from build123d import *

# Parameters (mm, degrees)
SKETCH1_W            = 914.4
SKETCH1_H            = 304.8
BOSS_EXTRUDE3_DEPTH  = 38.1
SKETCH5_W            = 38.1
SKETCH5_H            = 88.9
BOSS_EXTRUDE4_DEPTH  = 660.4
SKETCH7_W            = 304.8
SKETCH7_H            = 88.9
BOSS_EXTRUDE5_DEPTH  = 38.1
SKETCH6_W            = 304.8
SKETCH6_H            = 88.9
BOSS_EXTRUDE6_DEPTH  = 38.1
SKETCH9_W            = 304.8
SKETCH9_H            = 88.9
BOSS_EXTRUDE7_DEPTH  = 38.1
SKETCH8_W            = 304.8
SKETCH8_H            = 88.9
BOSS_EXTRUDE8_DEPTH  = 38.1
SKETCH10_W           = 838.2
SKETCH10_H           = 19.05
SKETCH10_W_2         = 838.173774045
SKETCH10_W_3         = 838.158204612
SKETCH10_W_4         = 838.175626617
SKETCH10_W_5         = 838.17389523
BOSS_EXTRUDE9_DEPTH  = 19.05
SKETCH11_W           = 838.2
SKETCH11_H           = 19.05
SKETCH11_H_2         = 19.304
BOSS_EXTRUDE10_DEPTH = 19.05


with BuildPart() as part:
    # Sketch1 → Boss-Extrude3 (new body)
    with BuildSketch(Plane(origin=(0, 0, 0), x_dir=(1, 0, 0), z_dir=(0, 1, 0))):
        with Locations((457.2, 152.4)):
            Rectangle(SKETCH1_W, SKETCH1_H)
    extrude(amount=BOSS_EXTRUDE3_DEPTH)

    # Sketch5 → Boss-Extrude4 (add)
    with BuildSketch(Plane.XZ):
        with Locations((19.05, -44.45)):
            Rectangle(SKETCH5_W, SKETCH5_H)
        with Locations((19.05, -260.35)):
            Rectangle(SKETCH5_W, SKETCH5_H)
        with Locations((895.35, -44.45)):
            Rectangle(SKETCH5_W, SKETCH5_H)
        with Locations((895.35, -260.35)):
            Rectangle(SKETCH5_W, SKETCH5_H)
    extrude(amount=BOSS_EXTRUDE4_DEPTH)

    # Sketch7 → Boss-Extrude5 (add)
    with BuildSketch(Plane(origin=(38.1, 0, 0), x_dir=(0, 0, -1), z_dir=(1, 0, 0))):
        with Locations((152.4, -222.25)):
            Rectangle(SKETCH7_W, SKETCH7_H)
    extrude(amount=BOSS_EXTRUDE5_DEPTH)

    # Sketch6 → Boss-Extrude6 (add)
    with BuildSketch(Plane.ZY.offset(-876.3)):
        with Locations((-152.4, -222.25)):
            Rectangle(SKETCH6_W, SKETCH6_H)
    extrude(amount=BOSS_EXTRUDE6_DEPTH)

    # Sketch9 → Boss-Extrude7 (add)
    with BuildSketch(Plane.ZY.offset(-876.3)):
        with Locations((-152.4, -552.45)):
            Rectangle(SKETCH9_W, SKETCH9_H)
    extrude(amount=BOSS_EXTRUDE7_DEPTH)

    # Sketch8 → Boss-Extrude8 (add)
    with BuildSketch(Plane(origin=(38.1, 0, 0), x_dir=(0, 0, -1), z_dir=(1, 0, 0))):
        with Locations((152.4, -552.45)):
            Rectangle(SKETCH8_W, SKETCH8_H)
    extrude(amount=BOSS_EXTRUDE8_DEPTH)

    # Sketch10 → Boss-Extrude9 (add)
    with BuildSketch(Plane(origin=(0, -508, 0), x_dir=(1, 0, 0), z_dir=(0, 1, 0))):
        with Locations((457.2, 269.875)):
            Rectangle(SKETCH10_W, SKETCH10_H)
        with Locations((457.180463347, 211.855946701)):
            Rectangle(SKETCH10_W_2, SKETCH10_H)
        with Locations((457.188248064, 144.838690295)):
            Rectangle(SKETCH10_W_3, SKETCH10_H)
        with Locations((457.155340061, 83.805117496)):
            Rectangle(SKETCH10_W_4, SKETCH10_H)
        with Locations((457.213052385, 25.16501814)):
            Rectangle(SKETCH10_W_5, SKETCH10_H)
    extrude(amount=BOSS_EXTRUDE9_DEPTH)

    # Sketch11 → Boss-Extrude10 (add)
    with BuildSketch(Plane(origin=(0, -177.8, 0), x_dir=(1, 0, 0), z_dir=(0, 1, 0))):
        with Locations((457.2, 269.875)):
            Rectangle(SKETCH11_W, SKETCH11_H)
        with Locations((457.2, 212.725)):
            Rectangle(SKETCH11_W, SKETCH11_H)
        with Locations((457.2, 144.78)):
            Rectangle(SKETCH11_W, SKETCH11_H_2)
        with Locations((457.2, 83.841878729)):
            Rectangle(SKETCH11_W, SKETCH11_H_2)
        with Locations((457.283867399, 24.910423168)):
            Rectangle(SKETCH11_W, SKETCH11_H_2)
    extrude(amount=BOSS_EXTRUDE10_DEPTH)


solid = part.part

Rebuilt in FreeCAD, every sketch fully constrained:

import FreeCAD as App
import Part
import Sketcher

V = App.Vector
Q = App.Units.Quantity

doc = App.newDocument("Part")
body = doc.addObject("PartDesign::Body", "Body")

# Sketch on XZ plane
sketch1 = body.newObject("Sketcher::SketchObject", "Sketch")
sketch1.AttachmentSupport = (doc.getObject("XZ_Plane"), [""])
sketch1.MapMode = "FlatFace"
sketch1.addGeometry([
    Part.LineSegment(V(0, -304.8, 0), V(0, 0, 0)),
    Part.LineSegment(V(0, 0, 0), V(914.4, 0, 0)),
    Part.LineSegment(V(914.4, 0, 0), V(914.4, -304.8, 0)),
    Part.LineSegment(V(914.4, -304.8, 0), V(0, -304.8, 0)),
], False)
sketch1.addConstraint([
    Sketcher.Constraint("Coincident", 0, 2, 1, 1),
    Sketcher.Constraint("Coincident", 1, 2, 2, 1),
    Sketcher.Constraint("Coincident", 2, 2, 3, 1),
    Sketcher.Constraint("Coincident", 3, 2, 0, 1),
    Sketcher.Constraint("Vertical", 0),
    Sketcher.Constraint("Horizontal", 1),
    Sketcher.Constraint("Vertical", 2),
    Sketcher.Constraint("Horizontal", 3),
    Sketcher.Constraint("Coincident", 0, 2, -1, 1),
    Sketcher.Constraint("DistanceX", 1, 1, 1, 2, Q("36 in")),
    Sketcher.Constraint("DistanceY", 0, 1, 0, 2, Q("12 in")),
])
pad1 = body.newObject("PartDesign::Pad", "Pad")
pad1.Profile = sketch1
pad1.Length = Q("1.5 in")
pad1.Reversed = True

# Sketch on XZ plane
sketch2 = body.newObject("Sketcher::SketchObject", "Sketch001")
sketch2.AttachmentSupport = (doc.getObject("XZ_Plane"), [""])
sketch2.MapMode = "FlatFace"
sketch2.addGeometry([
    Part.LineSegment(V(0, 0, 0), V(0, -88.9, 0)),  # 0
    Part.LineSegment(V(0, -88.9, 0), V(38.1, -88.9, 0)),  # 1
    Part.LineSegment(V(38.1, -88.9, 0), V(38.1, 0, 0)),  # 2
    Part.LineSegment(V(38.1, 0, 0), V(0, 0, 0)),  # 3
    Part.LineSegment(V(0, -215.9, 0), V(0, -304.8, 0)),  # 4
    Part.LineSegment(V(0, -304.8, 0), V(38.1, -304.8, 0)),  # 5
    Part.LineSegment(V(38.1, -304.8, 0), V(38.1, -215.9, 0)),  # 6
    Part.LineSegment(V(38.1, -215.9, 0), V(0, -215.9, 0)),  # 7
    Part.LineSegment(V(876.3, 0, 0), V(876.3, -88.9, 0)),  # 8
    Part.LineSegment(V(876.3, -88.9, 0), V(914.4, -88.9, 0)),  # 9
    Part.LineSegment(V(914.4, -88.9, 0), V(914.4, 0, 0)),  # 10
    Part.LineSegment(V(914.4, 0, 0), V(876.3, 0, 0)),  # 11
    Part.LineSegment(V(876.3, -215.9, 0), V(876.3, -304.8, 0)),  # 12
    Part.LineSegment(V(876.3, -304.8, 0), V(914.4, -304.8, 0)),  # 13
    Part.LineSegment(V(914.4, -304.8, 0), V(914.4, -215.9, 0)),  # 14
    Part.LineSegment(V(914.4, -215.9, 0), V(876.3, -215.9, 0)),  # 15
], False)
sketch2.addConstraint([
    Sketcher.Constraint("Coincident", 0, 2, 1, 1),
    Sketcher.Constraint("Coincident", 1, 2, 2, 1),
    Sketcher.Constraint("Coincident", 2, 2, 3, 1),
    Sketcher.Constraint("Coincident", 3, 2, 0, 1),
    Sketcher.Constraint("Coincident", 4, 2, 5, 1),
    Sketcher.Constraint("Coincident", 5, 2, 6, 1),
    Sketcher.Constraint("Coincident", 6, 2, 7, 1),
    Sketcher.Constraint("Coincident", 7, 2, 4, 1),
    Sketcher.Constraint("Coincident", 8, 2, 9, 1),
    Sketcher.Constraint("Coincident", 9, 2, 10, 1),
    Sketcher.Constraint("Coincident", 10, 2, 11, 1),
    Sketcher.Constraint("Coincident", 11, 2, 8, 1),
    Sketcher.Constraint("Coincident", 12, 2, 13, 1),
    Sketcher.Constraint("Coincident", 13, 2, 14, 1),
    Sketcher.Constraint("Coincident", 14, 2, 15, 1),
    Sketcher.Constraint("Coincident", 15, 2, 12, 1),
    Sketcher.Constraint("Vertical", 0),
    Sketcher.Constraint("Horizontal", 1),
    Sketcher.Constraint("Vertical", 2),
    Sketcher.Constraint("Horizontal", 3),
    Sketcher.Constraint("Vertical", 4),
    Sketcher.Constraint("Horizontal", 5),
    Sketcher.Constraint("Vertical", 6),
    Sketcher.Constraint("Horizontal", 7),
    Sketcher.Constraint("Vertical", 8),
    Sketcher.Constraint("Horizontal", 9),
    Sketcher.Constraint("Vertical", 10),
    Sketcher.Constraint("Horizontal", 11),
    Sketcher.Constraint("Vertical", 12),
    Sketcher.Constraint("Horizontal", 13),
    Sketcher.Constraint("Vertical", 14),
    Sketcher.Constraint("Horizontal", 15),
    Sketcher.Constraint("Coincident", 3, 2, -1, 1),
    Sketcher.Constraint("PointOnObject", 4, 2, -2),
    Sketcher.Constraint("PointOnObject", 10, 2, -1),
    Sketcher.Constraint("Horizontal", 1, 2, 8, 2),
    Sketcher.Constraint("Horizontal", 5, 2, 12, 2),
    Sketcher.Constraint("Horizontal", 7, 2, 14, 2),
    Sketcher.Constraint("Vertical", 2, 2, 5, 2),
    Sketcher.Constraint("Vertical", 11, 2, 12, 2),
    Sketcher.Constraint("Vertical", 10, 2, 13, 2),
    Sketcher.Constraint("Equal", 7, 9),
    Sketcher.Constraint("Equal", 2, 4),
    Sketcher.Constraint("DistanceX", 1, 1, 1, 2, Q("1.5 in")),
    Sketcher.Constraint("DistanceY", 0, 2, 0, 1, Q("3.5 in")),
    Sketcher.Constraint("DistanceY", 4, 2, -1, 1, Q("12 in")),
    Sketcher.Constraint("DistanceX", -1, 1, 9, 2, Q("36 in")),
])
pad2 = body.newObject("PartDesign::Pad", "Pad001")
pad2.Profile = sketch2
pad2.Length = Q("26 in")

# Sketch on YZ plane
sketch3 = body.newObject("Sketcher::SketchObject", "Sketch002")
sketch3.AttachmentSupport = (doc.getObject("YZ_Plane"), [""])
sketch3.MapMode = "FlatFace"
sketch3.AttachmentOffset = App.Placement(V(0, 0, 1.5 * 25.4), App.Rotation())
sketch3.addGeometry([
    Part.LineSegment(V(-177.8, 0, 0), V(-266.7, 0, 0)),
    Part.LineSegment(V(-266.7, 0, 0), V(-266.7, -304.8, 0)),
    Part.LineSegment(V(-266.7, -304.8, 0), V(-177.8, -304.8, 0)),
    Part.LineSegment(V(-177.8, -304.8, 0), V(-177.8, 0, 0)),
], False)
sketch3.addConstraint([
    Sketcher.Constraint("Coincident", 0, 2, 1, 1),
    Sketcher.Constraint("Coincident", 1, 2, 2, 1),
    Sketcher.Constraint("Coincident", 2, 2, 3, 1),
    Sketcher.Constraint("Coincident", 3, 2, 0, 1),
    Sketcher.Constraint("Horizontal", 0),
    Sketcher.Constraint("Vertical", 1),
    Sketcher.Constraint("Horizontal", 2),
    Sketcher.Constraint("Vertical", 3),
    Sketcher.Constraint("PointOnObject", 0, 2, -1),
    Sketcher.Constraint("DistanceY", 1, 2, 1, 1, Q("12 in")),
    Sketcher.Constraint("DistanceX", 0, 2, 0, 1, Q("3.5 in")),
    Sketcher.Constraint("DistanceX", 2, 2, -1, 1, Q("7 in")),
])
pad3 = body.newObject("PartDesign::Pad", "Pad002")
pad3.Profile = sketch3
pad3.Length = Q("1.5 in")

# Sketch on YZ plane
sketch4 = body.newObject("Sketcher::SketchObject", "Sketch003")
sketch4.AttachmentSupport = (doc.getObject("YZ_Plane"), [""])
sketch4.MapMode = "FlatFace"
sketch4.AttachmentOffset = App.Placement(V(0, 0, 34.5 * 25.4), App.Rotation())
sketch4.addGeometry([
    Part.LineSegment(V(-177.8, -304.8, 0), V(-266.7, -304.8, 0)),
    Part.LineSegment(V(-266.7, -304.8, 0), V(-266.7, 0, 0)),
    Part.LineSegment(V(-266.7, 0, 0), V(-177.8, 0, 0)),
    Part.LineSegment(V(-177.8, 0, 0), V(-177.8, -304.8, 0)),
], False)
sketch4.addConstraint([
    Sketcher.Constraint("Coincident", 0, 2, 1, 1),
    Sketcher.Constraint("Coincident", 1, 2, 2, 1),
    Sketcher.Constraint("Coincident", 2, 2, 3, 1),
    Sketcher.Constraint("Coincident", 3, 2, 0, 1),
    Sketcher.Constraint("Horizontal", 0),
    Sketcher.Constraint("Vertical", 1),
    Sketcher.Constraint("Horizontal", 2),
    Sketcher.Constraint("Vertical", 3),
    Sketcher.Constraint("PointOnObject", 1, 2, -1),
    Sketcher.Constraint("DistanceY", 1, 1, 1, 2, Q("12 in")),
    Sketcher.Constraint("DistanceX", 0, 2, 0, 1, Q("3.5 in")),
    Sketcher.Constraint("DistanceX", 2, 2, -1, 1, Q("7 in")),
])
pad4 = body.newObject("PartDesign::Pad", "Pad003")
pad4.Profile = sketch4
pad4.Length = Q("1.5 in")
pad4.Reversed = True

# Sketch on YZ plane
sketch5 = body.newObject("Sketcher::SketchObject", "Sketch004")
sketch5.AttachmentSupport = (doc.getObject("YZ_Plane"), [""])
sketch5.MapMode = "FlatFace"
sketch5.AttachmentOffset = App.Placement(V(0, 0, 34.5 * 25.4), App.Rotation())
sketch5.addGeometry([
    Part.LineSegment(V(-508, -304.8, 0), V(-596.9, -304.8, 0)),
    Part.LineSegment(V(-596.9, -304.8, 0), V(-596.9, 0, 0)),
    Part.LineSegment(V(-596.9, 0, 0), V(-508, 0, 0)),
    Part.LineSegment(V(-508, 0, 0), V(-508, -304.8, 0)),
], False)
sketch5.addConstraint([
    Sketcher.Constraint("Coincident", 0, 2, 1, 1),
    Sketcher.Constraint("Coincident", 1, 2, 2, 1),
    Sketcher.Constraint("Coincident", 2, 2, 3, 1),
    Sketcher.Constraint("Coincident", 3, 2, 0, 1),
    Sketcher.Constraint("Horizontal", 0),
    Sketcher.Constraint("Vertical", 1),
    Sketcher.Constraint("Horizontal", 2),
    Sketcher.Constraint("Vertical", 3),
    Sketcher.Constraint("PointOnObject", 1, 2, -1),
    Sketcher.Constraint("DistanceY", 1, 1, 1, 2, Q("12 in")),
    Sketcher.Constraint("DistanceX", 0, 2, 0, 1, Q("3.5 in")),
    Sketcher.Constraint("DistanceX", 2, 2, -1, 1, Q("20 in")),
])
pad5 = body.newObject("PartDesign::Pad", "Pad004")
pad5.Profile = sketch5
pad5.Length = Q("1.5 in")
pad5.Reversed = True

# Sketch on YZ plane
sketch6 = body.newObject("Sketcher::SketchObject", "Sketch005")
sketch6.AttachmentSupport = (doc.getObject("YZ_Plane"), [""])
sketch6.MapMode = "FlatFace"
sketch6.AttachmentOffset = App.Placement(V(0, 0, 1.5 * 25.4), App.Rotation())
sketch6.addGeometry([
    Part.LineSegment(V(-508, 0, 0), V(-596.9, 0, 0)),
    Part.LineSegment(V(-596.9, 0, 0), V(-596.9, -304.8, 0)),
    Part.LineSegment(V(-596.9, -304.8, 0), V(-508, -304.8, 0)),
    Part.LineSegment(V(-508, -304.8, 0), V(-508, 0, 0)),
], False)
sketch6.addConstraint([
    Sketcher.Constraint("Coincident", 0, 2, 1, 1),
    Sketcher.Constraint("Coincident", 1, 2, 2, 1),
    Sketcher.Constraint("Coincident", 2, 2, 3, 1),
    Sketcher.Constraint("Coincident", 3, 2, 0, 1),
    Sketcher.Constraint("Horizontal", 0),
    Sketcher.Constraint("Vertical", 1),
    Sketcher.Constraint("Horizontal", 2),
    Sketcher.Constraint("Vertical", 3),
    Sketcher.Constraint("PointOnObject", 0, 2, -1),
    Sketcher.Constraint("DistanceY", 1, 2, 1, 1, Q("12 in")),
    Sketcher.Constraint("DistanceX", 0, 2, 0, 1, Q("3.5 in")),
    Sketcher.Constraint("DistanceX", 2, 2, -1, 1, Q("20 in")),
])
pad6 = body.newObject("PartDesign::Pad", "Pad005")
pad6.Profile = sketch6
pad6.Length = Q("1.5 in")

# Sketch on XZ plane
sketch7 = body.newObject("Sketcher::SketchObject", "Sketch006")
sketch7.AttachmentSupport = (doc.getObject("XZ_Plane"), [""])
sketch7.MapMode = "FlatFace"
sketch7.AttachmentOffset = App.Placement(V(0, 0, 20 * 25.4), App.Rotation())
sketch7.addGeometry([
    Part.LineSegment(V(38.1, -279.4, 0), V(38.1, -260.35, 0)),  # 0
    Part.LineSegment(V(38.1, -260.35, 0), V(876.3, -260.35, 0)),  # 1
    Part.LineSegment(V(876.3, -260.35, 0), V(876.3, -279.4, 0)),  # 2
    Part.LineSegment(V(876.3, -279.4, 0), V(38.1, -279.4, 0)),  # 3
    Part.LineSegment(V(38.093576, -221.380947, 0), V(38.093576, -202.330947, 0)),  # 4
    Part.LineSegment(V(38.093576, -202.330947, 0), V(876.26735, -202.330947, 0)),  # 5
    Part.LineSegment(V(876.26735, -202.330947, 0), V(876.26735, -221.380947, 0)),  # 6
    Part.LineSegment(V(876.26735, -221.380947, 0), V(38.093576, -221.380947, 0)),  # 7
    Part.LineSegment(V(38.109146, -154.36369, 0), V(38.109146, -135.31369, 0)),  # 8
    Part.LineSegment(V(38.109146, -135.31369, 0), V(876.26735, -135.31369, 0)),  # 9
    Part.LineSegment(V(876.26735, -135.31369, 0), V(876.26735, -154.36369, 0)),  # 10
    Part.LineSegment(V(876.26735, -154.36369, 0), V(38.109146, -154.36369, 0)),  # 11
    Part.LineSegment(V(38.067527, -93.330117, 0), V(38.067527, -74.280117, 0)),  # 12
    Part.LineSegment(V(38.067527, -74.280117, 0), V(876.243153, -74.280117, 0)),  # 13
    Part.LineSegment(V(876.243153, -74.280117, 0), V(876.243153, -93.330117, 0)),  # 14
    Part.LineSegment(V(876.243153, -93.330117, 0), V(38.067527, -93.330117, 0)),  # 15
    Part.LineSegment(V(38.126105, -34.690018, 0), V(38.126105, -15.640018, 0)),  # 16
    Part.LineSegment(V(38.126105, -15.640018, 0), V(876.3, -15.640018, 0)),  # 17
    Part.LineSegment(V(876.3, -15.640018, 0), V(876.3, -34.690018, 0)),  # 18
    Part.LineSegment(V(876.3, -34.690018, 0), V(38.126105, -34.690018, 0)),  # 19
], False)
sketch7.addConstraint([
    Sketcher.Constraint("Coincident", 0, 2, 1, 1),
    Sketcher.Constraint("Coincident", 1, 2, 2, 1),
    Sketcher.Constraint("Coincident", 2, 2, 3, 1),
    Sketcher.Constraint("Coincident", 3, 2, 0, 1),
    Sketcher.Constraint("Coincident", 4, 2, 5, 1),
    Sketcher.Constraint("Coincident", 5, 2, 6, 1),
    Sketcher.Constraint("Coincident", 6, 2, 7, 1),
    Sketcher.Constraint("Coincident", 7, 2, 4, 1),
    Sketcher.Constraint("Coincident", 8, 2, 9, 1),
    Sketcher.Constraint("Coincident", 9, 2, 10, 1),
    Sketcher.Constraint("Coincident", 10, 2, 11, 1),
    Sketcher.Constraint("Coincident", 11, 2, 8, 1),
    Sketcher.Constraint("Coincident", 12, 2, 13, 1),
    Sketcher.Constraint("Coincident", 13, 2, 14, 1),
    Sketcher.Constraint("Coincident", 14, 2, 15, 1),
    Sketcher.Constraint("Coincident", 15, 2, 12, 1),
    Sketcher.Constraint("Coincident", 16, 2, 17, 1),
    Sketcher.Constraint("Coincident", 17, 2, 18, 1),
    Sketcher.Constraint("Coincident", 18, 2, 19, 1),
    Sketcher.Constraint("Coincident", 19, 2, 16, 1),
    Sketcher.Constraint("Vertical", 0),
    Sketcher.Constraint("Horizontal", 1),
    Sketcher.Constraint("Vertical", 2),
    Sketcher.Constraint("Horizontal", 3),
    Sketcher.Constraint("Vertical", 4),
    Sketcher.Constraint("Horizontal", 5),
    Sketcher.Constraint("Vertical", 6),
    Sketcher.Constraint("Horizontal", 7),
    Sketcher.Constraint("Vertical", 8),
    Sketcher.Constraint("Horizontal", 9),
    Sketcher.Constraint("Vertical", 10),
    Sketcher.Constraint("Horizontal", 11),
    Sketcher.Constraint("Vertical", 12),
    Sketcher.Constraint("Horizontal", 13),
    Sketcher.Constraint("Vertical", 14),
    Sketcher.Constraint("Horizontal", 15),
    Sketcher.Constraint("Vertical", 16),
    Sketcher.Constraint("Horizontal", 17),
    Sketcher.Constraint("Vertical", 18),
    Sketcher.Constraint("Horizontal", 19),
    Sketcher.Constraint("Vertical", 6, 2, 9, 2),
    Sketcher.Constraint("Vertical", 2, 2, 17, 2),
    Sketcher.Constraint("Equal", 2, 4),
    Sketcher.Constraint("Equal", 6, 8),
    Sketcher.Constraint("Equal", 10, 12),
    Sketcher.Constraint("Equal", 14, 16),
    Sketcher.Constraint("DistanceX", 1, 1, 1, 2, Q("33 in")),
    Sketcher.Constraint("DistanceY", 2, 2, -1, 1, Q("11 in")),
    Sketcher.Constraint("DistanceY", 0, 1, 0, 2, Q("0.75 in")),
    Sketcher.Constraint("DistanceX", -1, 1, 0, 2, Q("1.5 in")),
    Sketcher.Constraint("DistanceY", 12, 2, 16, 2, 58.640099),
    Sketcher.Constraint("DistanceX", 5, 1, 5, 2, 838.173774),
    Sketcher.Constraint("DistanceX", 9, 1, 9, 2, 838.158205),
    Sketcher.Constraint("DistanceX", 13, 1, 13, 2, 838.175627),
    Sketcher.Constraint("DistanceX", 17, 1, 17, 2, 838.173895),
    Sketcher.Constraint("DistanceX", -1, 1, 5, 2, 876.26735),
    Sketcher.Constraint("DistanceY", 8, 2, -1, 1, 135.31369),
    Sketcher.Constraint("DistanceY", 16, 2, -1, 1, 15.640018),
    Sketcher.Constraint("DistanceX", 12, 2, 8, 2, 0.041619),
    Sketcher.Constraint("DistanceY", 4, 2, 12, 2, 128.050829),
])
pad7 = body.newObject("PartDesign::Pad", "Pad006")
pad7.Profile = sketch7
pad7.Length = Q("0.75 in")
pad7.Reversed = True

# Sketch on XZ plane
sketch8 = body.newObject("Sketcher::SketchObject", "Sketch007")
sketch8.AttachmentSupport = (doc.getObject("XZ_Plane"), [""])
sketch8.MapMode = "FlatFace"
sketch8.AttachmentOffset = App.Placement(V(0, 0, 7 * 25.4), App.Rotation())
sketch8.addGeometry([
    Part.LineSegment(V(38.1, -279.4, 0), V(38.1, -260.35, 0)),  # 0
    Part.LineSegment(V(38.1, -260.35, 0), V(876.3, -260.35, 0)),  # 1
    Part.LineSegment(V(876.3, -260.35, 0), V(876.3, -279.4, 0)),  # 2
    Part.LineSegment(V(876.3, -279.4, 0), V(38.1, -279.4, 0)),  # 3
    Part.LineSegment(V(38.1, -222.25, 0), V(38.1, -203.2, 0)),  # 4
    Part.LineSegment(V(38.1, -203.2, 0), V(876.3, -203.2, 0)),  # 5
    Part.LineSegment(V(876.3, -203.2, 0), V(876.3, -222.25, 0)),  # 6
    Part.LineSegment(V(876.3, -222.25, 0), V(38.1, -222.25, 0)),  # 7
    Part.LineSegment(V(38.1, -154.432, 0), V(38.1, -135.128, 0)),  # 8
    Part.LineSegment(V(38.1, -135.128, 0), V(876.3, -135.128, 0)),  # 9
    Part.LineSegment(V(876.3, -135.128, 0), V(876.3, -154.432, 0)),  # 10
    Part.LineSegment(V(876.3, -154.432, 0), V(38.1, -154.432, 0)),  # 11
    Part.LineSegment(V(38.1, -93.493879, 0), V(38.1, -74.189879, 0)),  # 12
    Part.LineSegment(V(38.1, -74.189879, 0), V(876.3, -74.189879, 0)),  # 13
    Part.LineSegment(V(876.3, -74.189879, 0), V(876.3, -93.493879, 0)),  # 14
    Part.LineSegment(V(876.3, -93.493879, 0), V(38.1, -93.493879, 0)),  # 15
    Part.LineSegment(V(38.183867, -34.562423, 0), V(38.183867, -15.258423, 0)),  # 16
    Part.LineSegment(V(38.183867, -15.258423, 0), V(876.383867, -15.258423, 0)),  # 17
    Part.LineSegment(V(876.383867, -15.258423, 0), V(876.383867, -34.562423, 0)),  # 18
    Part.LineSegment(V(876.383867, -34.562423, 0), V(38.183867, -34.562423, 0)),  # 19
], False)
sketch8.addConstraint([
    Sketcher.Constraint("Coincident", 0, 2, 1, 1),
    Sketcher.Constraint("Coincident", 1, 2, 2, 1),
    Sketcher.Constraint("Coincident", 2, 2, 3, 1),
    Sketcher.Constraint("Coincident", 3, 2, 0, 1),
    Sketcher.Constraint("Coincident", 4, 2, 5, 1),
    Sketcher.Constraint("Coincident", 5, 2, 6, 1),
    Sketcher.Constraint("Coincident", 6, 2, 7, 1),
    Sketcher.Constraint("Coincident", 7, 2, 4, 1),
    Sketcher.Constraint("Coincident", 8, 2, 9, 1),
    Sketcher.Constraint("Coincident", 9, 2, 10, 1),
    Sketcher.Constraint("Coincident", 10, 2, 11, 1),
    Sketcher.Constraint("Coincident", 11, 2, 8, 1),
    Sketcher.Constraint("Coincident", 12, 2, 13, 1),
    Sketcher.Constraint("Coincident", 13, 2, 14, 1),
    Sketcher.Constraint("Coincident", 14, 2, 15, 1),
    Sketcher.Constraint("Coincident", 15, 2, 12, 1),
    Sketcher.Constraint("Coincident", 16, 2, 17, 1),
    Sketcher.Constraint("Coincident", 17, 2, 18, 1),
    Sketcher.Constraint("Coincident", 18, 2, 19, 1),
    Sketcher.Constraint("Coincident", 19, 2, 16, 1),
    Sketcher.Constraint("Vertical", 0),
    Sketcher.Constraint("Horizontal", 1),
    Sketcher.Constraint("Vertical", 2),
    Sketcher.Constraint("Horizontal", 3),
    Sketcher.Constraint("Vertical", 4),
    Sketcher.Constraint("Horizontal", 5),
    Sketcher.Constraint("Vertical", 6),
    Sketcher.Constraint("Horizontal", 7),
    Sketcher.Constraint("Vertical", 8),
    Sketcher.Constraint("Horizontal", 9),
    Sketcher.Constraint("Vertical", 10),
    Sketcher.Constraint("Horizontal", 11),
    Sketcher.Constraint("Vertical", 12),
    Sketcher.Constraint("Horizontal", 13),
    Sketcher.Constraint("Vertical", 14),
    Sketcher.Constraint("Horizontal", 15),
    Sketcher.Constraint("Vertical", 16),
    Sketcher.Constraint("Horizontal", 17),
    Sketcher.Constraint("Vertical", 18),
    Sketcher.Constraint("Horizontal", 19),
    Sketcher.Constraint("Vertical", 3, 2, 4, 2),
    Sketcher.Constraint("Vertical", 2, 2, 5, 2),
    Sketcher.Constraint("Vertical", 7, 2, 8, 2),
    Sketcher.Constraint("Vertical", 6, 2, 9, 2),
    Sketcher.Constraint("Vertical", 11, 2, 12, 2),
    Sketcher.Constraint("Vertical", 10, 2, 13, 2),
    Sketcher.Constraint("Equal", 15, 17),
    Sketcher.Constraint("Equal", 2, 4),
    Sketcher.Constraint("Equal", 10, 12),
    Sketcher.Constraint("Equal", 14, 16),
    Sketcher.Constraint("DistanceX", 1, 1, 1, 2, Q("33 in")),
    Sketcher.Constraint("DistanceY", 2, 2, -1, 1, Q("11 in")),
    Sketcher.Constraint("DistanceY", 4, 2, -1, 1, Q("8 in")),
    Sketcher.Constraint("DistanceY", 0, 1, 0, 2, Q("0.75 in")),
    Sketcher.Constraint("DistanceY", 8, 1, 8, 2, Q("0.76 in")),
    Sketcher.Constraint("DistanceX", -1, 1, 0, 2, Q("1.5 in")),
    Sketcher.Constraint("DistanceY", 8, 2, -1, 1, Q("5.32 in")),
    Sketcher.Constraint("DistanceY", 12, 2, -1, 1, 74.189879),
    Sketcher.Constraint("DistanceX", -1, 1, 16, 2, 38.183867),
    Sketcher.Constraint("DistanceY", 16, 2, -1, 1, 15.258423),
])
pad8 = body.newObject("PartDesign::Pad", "Pad007")
pad8.Profile = sketch8
pad8.Length = Q("0.75 in")
pad8.Reversed = True

doc.recompute()
